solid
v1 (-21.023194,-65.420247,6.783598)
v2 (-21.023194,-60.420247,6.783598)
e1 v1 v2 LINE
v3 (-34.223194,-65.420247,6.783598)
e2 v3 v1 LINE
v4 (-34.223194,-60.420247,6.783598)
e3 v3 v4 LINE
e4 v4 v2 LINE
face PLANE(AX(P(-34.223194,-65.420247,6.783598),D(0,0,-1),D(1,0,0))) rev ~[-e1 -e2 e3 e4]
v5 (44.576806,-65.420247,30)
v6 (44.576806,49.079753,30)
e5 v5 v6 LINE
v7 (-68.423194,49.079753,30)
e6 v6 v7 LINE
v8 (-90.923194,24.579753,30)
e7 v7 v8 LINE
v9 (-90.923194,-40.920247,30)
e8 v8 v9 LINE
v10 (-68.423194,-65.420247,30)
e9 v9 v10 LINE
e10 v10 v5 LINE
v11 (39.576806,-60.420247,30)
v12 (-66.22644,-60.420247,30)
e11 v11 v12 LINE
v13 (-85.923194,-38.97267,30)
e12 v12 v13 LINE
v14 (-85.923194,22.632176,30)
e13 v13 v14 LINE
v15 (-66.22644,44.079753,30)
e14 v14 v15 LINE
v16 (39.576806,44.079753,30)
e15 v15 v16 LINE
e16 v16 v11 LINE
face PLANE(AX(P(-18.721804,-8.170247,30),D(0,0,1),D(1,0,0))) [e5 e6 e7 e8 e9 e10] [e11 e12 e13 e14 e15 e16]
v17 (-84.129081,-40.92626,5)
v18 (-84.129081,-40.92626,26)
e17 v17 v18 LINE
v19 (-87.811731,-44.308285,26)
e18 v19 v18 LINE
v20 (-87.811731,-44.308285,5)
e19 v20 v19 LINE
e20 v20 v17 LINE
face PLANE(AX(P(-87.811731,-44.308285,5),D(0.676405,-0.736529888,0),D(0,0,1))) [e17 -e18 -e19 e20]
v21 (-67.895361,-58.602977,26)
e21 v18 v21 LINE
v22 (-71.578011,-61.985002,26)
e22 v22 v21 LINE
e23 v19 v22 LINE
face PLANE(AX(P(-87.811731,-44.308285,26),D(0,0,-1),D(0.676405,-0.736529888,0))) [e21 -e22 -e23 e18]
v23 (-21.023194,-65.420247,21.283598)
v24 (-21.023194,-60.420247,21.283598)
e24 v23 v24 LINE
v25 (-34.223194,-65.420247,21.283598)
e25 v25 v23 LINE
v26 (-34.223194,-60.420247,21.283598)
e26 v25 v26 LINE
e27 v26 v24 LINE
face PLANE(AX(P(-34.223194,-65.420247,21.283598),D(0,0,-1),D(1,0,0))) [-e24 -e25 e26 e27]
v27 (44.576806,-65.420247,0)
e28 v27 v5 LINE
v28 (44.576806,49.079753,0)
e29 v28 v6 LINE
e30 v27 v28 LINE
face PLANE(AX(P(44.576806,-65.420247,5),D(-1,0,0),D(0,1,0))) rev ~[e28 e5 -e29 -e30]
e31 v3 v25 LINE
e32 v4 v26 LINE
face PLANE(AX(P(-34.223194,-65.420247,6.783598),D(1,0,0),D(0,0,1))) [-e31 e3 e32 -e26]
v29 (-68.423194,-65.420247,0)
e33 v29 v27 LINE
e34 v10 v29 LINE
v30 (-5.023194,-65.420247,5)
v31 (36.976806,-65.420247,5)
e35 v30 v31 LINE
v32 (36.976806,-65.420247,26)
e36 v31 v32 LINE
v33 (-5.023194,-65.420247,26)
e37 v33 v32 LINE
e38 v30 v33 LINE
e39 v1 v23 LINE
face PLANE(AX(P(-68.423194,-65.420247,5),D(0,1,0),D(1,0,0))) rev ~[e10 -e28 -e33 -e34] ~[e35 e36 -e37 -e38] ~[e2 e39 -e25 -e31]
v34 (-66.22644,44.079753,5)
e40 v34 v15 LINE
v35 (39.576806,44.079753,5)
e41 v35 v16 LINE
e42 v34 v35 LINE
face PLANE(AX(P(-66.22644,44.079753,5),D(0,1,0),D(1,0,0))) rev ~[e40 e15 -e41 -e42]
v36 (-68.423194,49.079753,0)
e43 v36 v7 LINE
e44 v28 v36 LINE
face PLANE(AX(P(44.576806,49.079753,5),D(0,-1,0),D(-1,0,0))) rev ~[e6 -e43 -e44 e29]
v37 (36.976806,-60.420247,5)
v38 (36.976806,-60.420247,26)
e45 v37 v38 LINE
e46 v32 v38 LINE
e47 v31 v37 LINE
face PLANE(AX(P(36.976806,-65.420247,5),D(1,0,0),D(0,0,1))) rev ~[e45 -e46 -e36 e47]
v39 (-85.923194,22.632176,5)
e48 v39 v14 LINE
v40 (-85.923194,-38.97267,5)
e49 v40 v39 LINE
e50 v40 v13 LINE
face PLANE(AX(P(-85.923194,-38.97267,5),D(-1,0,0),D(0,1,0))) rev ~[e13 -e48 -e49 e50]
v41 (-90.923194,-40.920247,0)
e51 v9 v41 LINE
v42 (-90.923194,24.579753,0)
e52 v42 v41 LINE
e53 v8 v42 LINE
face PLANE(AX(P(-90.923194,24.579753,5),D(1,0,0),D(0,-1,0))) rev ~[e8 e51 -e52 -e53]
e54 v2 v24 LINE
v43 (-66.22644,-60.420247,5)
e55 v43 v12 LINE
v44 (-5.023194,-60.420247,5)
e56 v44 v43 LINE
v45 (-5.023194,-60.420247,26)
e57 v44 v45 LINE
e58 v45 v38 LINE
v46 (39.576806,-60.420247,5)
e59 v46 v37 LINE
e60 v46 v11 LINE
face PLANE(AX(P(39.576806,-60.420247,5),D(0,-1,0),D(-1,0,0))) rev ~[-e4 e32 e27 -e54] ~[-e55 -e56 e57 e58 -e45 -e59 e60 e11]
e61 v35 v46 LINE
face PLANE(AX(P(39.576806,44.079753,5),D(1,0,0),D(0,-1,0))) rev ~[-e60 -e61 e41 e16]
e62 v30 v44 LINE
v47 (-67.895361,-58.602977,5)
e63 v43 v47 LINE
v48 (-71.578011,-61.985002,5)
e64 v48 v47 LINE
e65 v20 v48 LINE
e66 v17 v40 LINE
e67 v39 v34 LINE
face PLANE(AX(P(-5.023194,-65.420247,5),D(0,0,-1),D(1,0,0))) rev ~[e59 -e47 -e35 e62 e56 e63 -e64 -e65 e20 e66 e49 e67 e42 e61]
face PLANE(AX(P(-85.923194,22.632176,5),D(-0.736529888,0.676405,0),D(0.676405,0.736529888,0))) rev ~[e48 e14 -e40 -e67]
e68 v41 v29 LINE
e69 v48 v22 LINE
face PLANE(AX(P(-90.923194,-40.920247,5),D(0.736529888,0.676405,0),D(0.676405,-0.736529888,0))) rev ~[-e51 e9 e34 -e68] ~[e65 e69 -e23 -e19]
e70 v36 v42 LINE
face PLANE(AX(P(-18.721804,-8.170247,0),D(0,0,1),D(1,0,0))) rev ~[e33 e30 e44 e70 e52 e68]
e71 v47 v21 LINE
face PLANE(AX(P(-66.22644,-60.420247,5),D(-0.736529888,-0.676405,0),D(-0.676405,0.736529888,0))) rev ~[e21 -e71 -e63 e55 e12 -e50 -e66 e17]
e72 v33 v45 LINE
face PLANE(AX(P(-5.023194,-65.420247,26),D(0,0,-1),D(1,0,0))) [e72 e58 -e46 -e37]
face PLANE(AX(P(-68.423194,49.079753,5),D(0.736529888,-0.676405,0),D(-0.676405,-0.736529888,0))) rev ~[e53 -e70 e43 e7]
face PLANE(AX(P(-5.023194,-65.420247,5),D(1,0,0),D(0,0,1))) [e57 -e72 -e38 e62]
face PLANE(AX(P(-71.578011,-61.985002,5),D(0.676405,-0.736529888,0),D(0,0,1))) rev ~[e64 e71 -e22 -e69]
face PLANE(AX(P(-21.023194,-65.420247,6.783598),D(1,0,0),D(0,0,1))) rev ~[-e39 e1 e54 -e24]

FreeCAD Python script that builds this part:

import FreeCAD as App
import Part
import Sketcher
Q = App.Units.Quantity


def add_polygon(sketch, points):
    """Adds a closed chain of lines whose ends are joined by coincident constraints."""
    first, n = sketch.GeometryCount, len(points)
    for a, b in zip(points, points[1:] + points[:1]):
        sketch.addGeometry(Part.LineSegment(App.Vector(*a, 0), App.Vector(*b, 0)), False)
    for i in range(n):
        sketch.addConstraint(Sketcher.Constraint("Coincident", first + i, 2, first + (i + 1) % n, 1))

doc = App.newDocument("Part")
params = doc.addObject("Spreadsheet::Sheet", "Params")
for row, (alias, value) in enumerate([
    ("sketch1_width", "113 mm"),
    ("sketch1_height", "114.5 mm"),
    ("sketch1_height2", "65.5 mm"),
    ("pad1_length", "5 mm"),
    ("sketch2_width", "113 mm"),
    ("sketch2_height", "114.5 mm"),
    ("sketch2_height2", "65.5 mm"),
    ("sketch2_height3", "104.5 mm"),
    ("pad2_length", "25 mm"),
    ("sketch3_width", "42 mm"),
    ("sketch3_height", "21 mm"),
    ("sketch3_width2", "13.2 mm"),
    ("sketch3_height2", "14.5 mm"),
    ("pocket1_length", "25 mm"),
    ("sketch4_width", "24 mm"),
    ("sketch4_height", "21 mm"),
    ("pocket2_length", "5 mm"),
], start=1):
    params.set(f"A{row}", alias)
    params.set(f"B{row}", "=" + value)
    params.setAlias(f"B{row}", alias)

body = doc.addObject("PartDesign::Body", "Body")

sketch1 = body.newObject("Sketcher::SketchObject", "Sketch")
sketch1.AttachmentSupport = (doc.getObject("XY_Plane"), [""])
sketch1.MapMode = "FlatFace"
add_polygon(sketch1, [(45, -65), (45, 49), (-68, 49), (-91, 25), (-91, -41), (-68, -65)])
sketch1.addConstraint(Sketcher.Constraint("Vertical", 0))
sketch1.addConstraint(Sketcher.Constraint("Horizontal", 1))
sketch1.addConstraint(Sketcher.Constraint("Vertical", 3))
sketch1.addConstraint(Sketcher.Constraint("Horizontal", 5))
sketch1.addConstraint(Sketcher.Constraint("Vertical", 1, 2, 4, 2))
sketch1.addConstraint(Sketcher.Constraint("Equal", 2, 4))
sketch1.addConstraint(Sketcher.Constraint("DistanceX", 1, 2, 1, 1, Q("113 mm")))
sketch1.addConstraint(Sketcher.Constraint("DistanceY", 0, 1, 0, 2, Q("114.5 mm")))
sketch1.addConstraint(Sketcher.Constraint("DistanceY", 3, 2, 3, 1, Q("65.5 mm")))
sketch1.addConstraint(Sketcher.Constraint("DistanceX", 2, 2, 1, 2, Q("22.5 mm")))
sketch1.addConstraint(Sketcher.Constraint("DistanceX", -1, 1, 0, 2, Q("44.576806 mm")))
sketch1.addConstraint(Sketcher.Constraint("DistanceY", -1, 1, 0, 2, Q("49.079753 mm")))
sketch1.setExpression("Constraints[12]", "Params.sketch1_width")
sketch1.setExpression("Constraints[13]", "Params.sketch1_height")
sketch1.setExpression("Constraints[14]", "Params.sketch1_height2")
pad1 = body.newObject("PartDesign::Pad", "Pad")
pad1.Profile = sketch1
pad1.setExpression("Length", "Params.pad1_length")

sketch2 = body.newObject("Sketcher::SketchObject", "Sketch001")
sketch2.AttachmentSupport = (doc.getObject("XY_Plane"), [""])
sketch2.MapMode = "FlatFace"
sketch2.AttachmentOffset = App.Placement(App.Vector(0, 0, 5), App.Rotation())
add_polygon(sketch2, [(-68, -65), (45, -65), (45, 49), (-68, 49), (-91, 25), (-91, -41)])
add_polygon(sketch2, [(-86, -39), (-86, 23), (-66, 44), (40, 44), (40, -60), (-66, -60)])
sketch2.addConstraint(Sketcher.Constraint("Horizontal", 0))
sketch2.addConstraint(Sketcher.Constraint("Vertical", 1))
sketch2.addConstraint(Sketcher.Constraint("Horizontal", 2))
sketch2.addConstraint(Sketcher.Constraint("Vertical", 4))
sketch2.addConstraint(Sketcher.Constraint("Vertical", 6))
sketch2.addConstraint(Sketcher.Constraint("Horizontal", 8))
sketch2.addConstraint(Sketcher.Constraint("Vertical", 9))
sketch2.addConstraint(Sketcher.Constraint("Horizontal", 10))
sketch2.addConstraint(Sketcher.Constraint("Parallel", 3, 7))
sketch2.addConstraint(Sketcher.Constraint("Parallel", 5, 11))
sketch2.addConstraint(Sketcher.Constraint("Vertical", 2, 2, 5, 2))
sketch2.addConstraint(Sketcher.Constraint("Vertical", 7, 2, 10, 2))
sketch2.addConstraint(Sketcher.Constraint("Equal", 3, 5))
sketch2.addConstraint(Sketcher.Constraint("DistanceX", 0, 1, 0, 2, Q("113 mm")))
sketch2.addConstraint(Sketcher.Constraint("DistanceY", 1, 1, 1, 2, Q("114.5 mm")))
sketch2.addConstraint(Sketcher.Constraint("DistanceY", 4, 2, 4, 1, Q("65.5 mm")))
sketch2.addConstraint(Sketcher.Constraint("DistanceY", 9, 2, 9, 1, Q("104.5 mm")))
sketch2.addConstraint(Sketcher.Constraint("DistanceX", 3, 2, 6, 2, Q("5 mm")))
sketch2.addConstraint(Sketcher.Constraint("DistanceY", 7, 2, 2, 2, Q("5 mm")))
sketch2.addConstraint(Sketcher.Constraint("DistanceX", 8, 2, 1, 2, Q("5 mm")))
sketch2.addConstraint(Sketcher.Constraint("DistanceX", 3, 2, 2, 2, Q("22.5 mm")))
sketch2.addConstraint(Sketcher.Constraint("DistanceX", 8, 1, 8, 2, Q("105.803246 mm")))
sketch2.addConstraint(Sketcher.Constraint("DistanceX", 7, 2, -1, 1, Q("66.22644 mm")))
sketch2.addConstraint(Sketcher.Constraint("DistanceY", 11, 2, -1, 1, Q("38.97267 mm")))
sketch2.setExpression("Constraints[25]", "Params.sketch2_width")
sketch2.setExpression("Constraints[26]", "Params.sketch2_height")
sketch2.setExpression("Constraints[27]", "Params.sketch2_height2")
sketch2.setExpression("Constraints[28]", "Params.sketch2_height3")
pad2 = body.newObject("PartDesign::Pad", "Pad001")
pad2.Profile = sketch2
pad2.setExpression("Length", "Params.pad2_length")

sketch3 = body.newObject("Sketcher::SketchObject", "Sketch002")
sketch3.AttachmentSupport = (doc.getObject("XZ_Plane"), [""])
sketch3.MapMode = "FlatFace"
sketch3.AttachmentOffset = App.Placement(App.Vector(0, 0, 65.420247), App.Rotation())
add_polygon(sketch3, [(-34, 21), (-34, 7), (-21, 7), (-21, 21)])
add_polygon(sketch3, [(-5, 26), (-5, 5), (37, 5), (37, 26)])
sketch3.addConstraint(Sketcher.Constraint("Vertical", 0))
sketch3.addConstraint(Sketcher.Constraint("Horizontal", 1))
sketch3.addConstraint(Sketcher.Constraint("Vertical", 2))
sketch3.addConstraint(Sketcher.Constraint("Horizontal", 3))
sketch3.addConstraint(Sketcher.Constraint("Vertical", 4))
sketch3.addConstraint(Sketcher.Constraint("Horizontal", 5))
sketch3.addConstraint(Sketcher.Constraint("Vertical", 6))
sketch3.addConstraint(Sketcher.Constraint("Horizontal", 7))
sketch3.addConstraint(Sketcher.Constraint("DistanceX", 5, 1, 5, 2, Q("42 mm")))
sketch3.addConstraint(Sketcher.Constraint("DistanceY", 4, 2, 4, 1, Q("21 mm")))
sketch3.addConstraint(Sketcher.Constraint("DistanceX", 1, 1, 1, 2, Q("13.2 mm")))
sketch3.addConstraint(Sketcher.Constraint("DistanceY", 0, 2, 0, 1, Q("14.5 mm")))
sketch3.addConstraint(Sketcher.Constraint("DistanceY", -1, 1, 4, 2, Q("5 mm")))
sketch3.addConstraint(Sketcher.Constraint("DistanceX", 1, 2, 4, 2, Q("16 mm")))
sketch3.addConstraint(Sketcher.Constraint("DistanceX", 0, 2, -1, 1, Q("34.223194 mm")))
sketch3.addConstraint(Sketcher.Constraint("DistanceY", -1, 1, 0, 2, Q("6.783598 mm")))
sketch3.setExpression("Constraints[16]", "Params.sketch3_width")
sketch3.setExpression("Constraints[17]", "Params.sketch3_height")
sketch3.setExpression("Constraints[18]", "Params.sketch3_width2")
sketch3.setExpression("Constraints[19]", "Params.sketch3_height2")
pocket1 = body.newObject("PartDesign::Pocket", "Pocket")
pocket1.Profile = sketch3
pocket1.setExpression("Length", "Params.pocket1_length")

sketch4 = body.newObject("Sketcher::SketchObject", "Sketch003")
sketch4.Placement = App.Placement(App.Vector(-69.709836, -64.019237, 0), App.Rotation(App.Vector(0.676405, -0.736529888, 0), App.Vector(0, 0, 1), App.Vector(-0.736529888, -0.676405, 0), "ZXY"))
add_polygon(sketch4, [(-27, 26), (-27, 5), (-3, 5), (-3, 26)])
sketch4.addConstraint(Sketcher.Constraint("Vertical", 0))
sketch4.addConstraint(Sketcher.Constraint("Horizontal", 1))
sketch4.addConstraint(Sketcher.Constraint("Vertical", 2))
sketch4.addConstraint(Sketcher.Constraint("Horizontal", 3))
sketch4.addConstraint(Sketcher.Constraint("DistanceX", 1, 1, 1, 2, Q("24 mm")))
sketch4.addConstraint(Sketcher.Constraint("DistanceY", 0, 2, 0, 1, Q("21 mm")))
sketch4.addConstraint(Sketcher.Constraint("DistanceY", -1, 1, 0, 2, Q("5 mm")))
sketch4.addConstraint(Sketcher.Constraint("DistanceX", 0, 2, -1, 1, Q("26.761918 mm")))
sketch4.setExpression("Constraints[8]", "Params.sketch4_width")
sketch4.setExpression("Constraints[9]", "Params.sketch4_height")
pocket2 = body.newObject("PartDesign::Pocket", "Pocket001")
pocket2.Profile = sketch4
pocket2.setExpression("Length", "Params.pocket2_length")

doc.recompute()
